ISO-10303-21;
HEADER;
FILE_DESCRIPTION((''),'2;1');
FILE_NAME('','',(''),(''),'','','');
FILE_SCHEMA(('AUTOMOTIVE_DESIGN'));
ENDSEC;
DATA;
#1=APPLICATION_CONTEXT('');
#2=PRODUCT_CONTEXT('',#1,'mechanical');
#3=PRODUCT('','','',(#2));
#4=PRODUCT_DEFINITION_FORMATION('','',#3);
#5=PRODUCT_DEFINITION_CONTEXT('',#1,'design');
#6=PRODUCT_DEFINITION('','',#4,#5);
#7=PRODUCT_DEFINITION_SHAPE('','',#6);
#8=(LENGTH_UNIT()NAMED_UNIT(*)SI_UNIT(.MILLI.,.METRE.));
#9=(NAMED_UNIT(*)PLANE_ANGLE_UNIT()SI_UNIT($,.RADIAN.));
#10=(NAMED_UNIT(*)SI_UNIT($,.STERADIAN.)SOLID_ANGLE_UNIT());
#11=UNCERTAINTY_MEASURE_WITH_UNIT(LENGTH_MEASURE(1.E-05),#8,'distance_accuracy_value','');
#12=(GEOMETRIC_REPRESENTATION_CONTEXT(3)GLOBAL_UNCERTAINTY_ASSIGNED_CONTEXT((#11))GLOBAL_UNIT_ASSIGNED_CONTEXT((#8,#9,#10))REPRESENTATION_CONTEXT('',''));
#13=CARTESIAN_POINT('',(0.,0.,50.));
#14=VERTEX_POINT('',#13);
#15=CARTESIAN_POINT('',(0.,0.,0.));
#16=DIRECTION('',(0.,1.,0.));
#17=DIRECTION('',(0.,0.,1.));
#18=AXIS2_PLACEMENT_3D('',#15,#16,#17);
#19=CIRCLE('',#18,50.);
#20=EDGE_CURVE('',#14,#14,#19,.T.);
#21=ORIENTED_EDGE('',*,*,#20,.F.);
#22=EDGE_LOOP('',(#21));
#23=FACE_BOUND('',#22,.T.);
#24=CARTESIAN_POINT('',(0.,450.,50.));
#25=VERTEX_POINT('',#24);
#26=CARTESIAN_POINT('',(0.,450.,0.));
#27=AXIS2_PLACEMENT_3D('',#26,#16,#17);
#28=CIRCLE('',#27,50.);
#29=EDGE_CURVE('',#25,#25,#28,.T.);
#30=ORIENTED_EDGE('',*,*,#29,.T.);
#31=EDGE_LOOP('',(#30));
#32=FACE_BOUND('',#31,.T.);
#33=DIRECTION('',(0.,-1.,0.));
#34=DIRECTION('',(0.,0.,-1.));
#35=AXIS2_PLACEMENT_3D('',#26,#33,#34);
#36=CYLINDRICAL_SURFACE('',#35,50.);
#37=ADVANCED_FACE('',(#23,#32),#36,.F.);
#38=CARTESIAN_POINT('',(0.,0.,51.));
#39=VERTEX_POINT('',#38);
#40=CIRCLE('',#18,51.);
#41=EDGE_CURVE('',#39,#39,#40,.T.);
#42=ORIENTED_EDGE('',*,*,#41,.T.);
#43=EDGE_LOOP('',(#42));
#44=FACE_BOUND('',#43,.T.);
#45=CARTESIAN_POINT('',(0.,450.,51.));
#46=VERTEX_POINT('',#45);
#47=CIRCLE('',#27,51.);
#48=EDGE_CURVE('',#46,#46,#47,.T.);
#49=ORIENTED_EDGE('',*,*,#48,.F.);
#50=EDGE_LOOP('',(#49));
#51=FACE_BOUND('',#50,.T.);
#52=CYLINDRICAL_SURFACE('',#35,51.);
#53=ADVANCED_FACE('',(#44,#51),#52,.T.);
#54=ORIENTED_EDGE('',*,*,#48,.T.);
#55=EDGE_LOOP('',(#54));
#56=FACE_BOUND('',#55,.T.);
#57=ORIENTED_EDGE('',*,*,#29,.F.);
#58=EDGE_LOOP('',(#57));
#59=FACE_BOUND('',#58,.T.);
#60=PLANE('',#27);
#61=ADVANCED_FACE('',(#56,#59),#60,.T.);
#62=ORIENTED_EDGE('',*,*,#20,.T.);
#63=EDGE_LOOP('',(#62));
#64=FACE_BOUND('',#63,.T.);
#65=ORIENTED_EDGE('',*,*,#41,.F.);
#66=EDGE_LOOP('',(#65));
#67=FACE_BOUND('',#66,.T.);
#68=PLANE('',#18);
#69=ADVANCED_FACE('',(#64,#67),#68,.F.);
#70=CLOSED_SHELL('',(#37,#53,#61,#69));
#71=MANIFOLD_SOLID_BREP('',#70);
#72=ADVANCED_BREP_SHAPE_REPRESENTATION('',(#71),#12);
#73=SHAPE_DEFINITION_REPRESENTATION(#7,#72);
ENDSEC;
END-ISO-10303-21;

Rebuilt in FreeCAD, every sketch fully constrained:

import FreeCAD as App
import Part
import Sketcher

doc = App.newDocument("Part")
body = doc.addObject("PartDesign::Body", "Body")

# Sketch on XZ plane
sketch1 = body.newObject("Sketcher::SketchObject", "Sketch")
sketch1.AttachmentSupport = (doc.getObject("XZ_Plane"), [""])
sketch1.MapMode = "FlatFace"
sketch1.addGeometry([
    Part.Circle(App.Vector(0, 0, 0), App.Vector(0, 0, 1), 51),
    Part.Circle(App.Vector(0, 0, 0), App.Vector(0, 0, 1), 50),
], False)
sketch1.addConstraint([
    Sketcher.Constraint("Coincident", 0, 3, -1, 1),
    Sketcher.Constraint("Coincident", 1, 3, -1, 1),
    Sketcher.Constraint("Diameter", 0, 102.0),
    Sketcher.Constraint("Diameter", 1, 100.0),
])
pad1 = body.newObject("PartDesign::Pad", "Pad")
pad1.Profile = sketch1
pad1.Length = 450
pad1.Reversed = True

doc.recompute()
